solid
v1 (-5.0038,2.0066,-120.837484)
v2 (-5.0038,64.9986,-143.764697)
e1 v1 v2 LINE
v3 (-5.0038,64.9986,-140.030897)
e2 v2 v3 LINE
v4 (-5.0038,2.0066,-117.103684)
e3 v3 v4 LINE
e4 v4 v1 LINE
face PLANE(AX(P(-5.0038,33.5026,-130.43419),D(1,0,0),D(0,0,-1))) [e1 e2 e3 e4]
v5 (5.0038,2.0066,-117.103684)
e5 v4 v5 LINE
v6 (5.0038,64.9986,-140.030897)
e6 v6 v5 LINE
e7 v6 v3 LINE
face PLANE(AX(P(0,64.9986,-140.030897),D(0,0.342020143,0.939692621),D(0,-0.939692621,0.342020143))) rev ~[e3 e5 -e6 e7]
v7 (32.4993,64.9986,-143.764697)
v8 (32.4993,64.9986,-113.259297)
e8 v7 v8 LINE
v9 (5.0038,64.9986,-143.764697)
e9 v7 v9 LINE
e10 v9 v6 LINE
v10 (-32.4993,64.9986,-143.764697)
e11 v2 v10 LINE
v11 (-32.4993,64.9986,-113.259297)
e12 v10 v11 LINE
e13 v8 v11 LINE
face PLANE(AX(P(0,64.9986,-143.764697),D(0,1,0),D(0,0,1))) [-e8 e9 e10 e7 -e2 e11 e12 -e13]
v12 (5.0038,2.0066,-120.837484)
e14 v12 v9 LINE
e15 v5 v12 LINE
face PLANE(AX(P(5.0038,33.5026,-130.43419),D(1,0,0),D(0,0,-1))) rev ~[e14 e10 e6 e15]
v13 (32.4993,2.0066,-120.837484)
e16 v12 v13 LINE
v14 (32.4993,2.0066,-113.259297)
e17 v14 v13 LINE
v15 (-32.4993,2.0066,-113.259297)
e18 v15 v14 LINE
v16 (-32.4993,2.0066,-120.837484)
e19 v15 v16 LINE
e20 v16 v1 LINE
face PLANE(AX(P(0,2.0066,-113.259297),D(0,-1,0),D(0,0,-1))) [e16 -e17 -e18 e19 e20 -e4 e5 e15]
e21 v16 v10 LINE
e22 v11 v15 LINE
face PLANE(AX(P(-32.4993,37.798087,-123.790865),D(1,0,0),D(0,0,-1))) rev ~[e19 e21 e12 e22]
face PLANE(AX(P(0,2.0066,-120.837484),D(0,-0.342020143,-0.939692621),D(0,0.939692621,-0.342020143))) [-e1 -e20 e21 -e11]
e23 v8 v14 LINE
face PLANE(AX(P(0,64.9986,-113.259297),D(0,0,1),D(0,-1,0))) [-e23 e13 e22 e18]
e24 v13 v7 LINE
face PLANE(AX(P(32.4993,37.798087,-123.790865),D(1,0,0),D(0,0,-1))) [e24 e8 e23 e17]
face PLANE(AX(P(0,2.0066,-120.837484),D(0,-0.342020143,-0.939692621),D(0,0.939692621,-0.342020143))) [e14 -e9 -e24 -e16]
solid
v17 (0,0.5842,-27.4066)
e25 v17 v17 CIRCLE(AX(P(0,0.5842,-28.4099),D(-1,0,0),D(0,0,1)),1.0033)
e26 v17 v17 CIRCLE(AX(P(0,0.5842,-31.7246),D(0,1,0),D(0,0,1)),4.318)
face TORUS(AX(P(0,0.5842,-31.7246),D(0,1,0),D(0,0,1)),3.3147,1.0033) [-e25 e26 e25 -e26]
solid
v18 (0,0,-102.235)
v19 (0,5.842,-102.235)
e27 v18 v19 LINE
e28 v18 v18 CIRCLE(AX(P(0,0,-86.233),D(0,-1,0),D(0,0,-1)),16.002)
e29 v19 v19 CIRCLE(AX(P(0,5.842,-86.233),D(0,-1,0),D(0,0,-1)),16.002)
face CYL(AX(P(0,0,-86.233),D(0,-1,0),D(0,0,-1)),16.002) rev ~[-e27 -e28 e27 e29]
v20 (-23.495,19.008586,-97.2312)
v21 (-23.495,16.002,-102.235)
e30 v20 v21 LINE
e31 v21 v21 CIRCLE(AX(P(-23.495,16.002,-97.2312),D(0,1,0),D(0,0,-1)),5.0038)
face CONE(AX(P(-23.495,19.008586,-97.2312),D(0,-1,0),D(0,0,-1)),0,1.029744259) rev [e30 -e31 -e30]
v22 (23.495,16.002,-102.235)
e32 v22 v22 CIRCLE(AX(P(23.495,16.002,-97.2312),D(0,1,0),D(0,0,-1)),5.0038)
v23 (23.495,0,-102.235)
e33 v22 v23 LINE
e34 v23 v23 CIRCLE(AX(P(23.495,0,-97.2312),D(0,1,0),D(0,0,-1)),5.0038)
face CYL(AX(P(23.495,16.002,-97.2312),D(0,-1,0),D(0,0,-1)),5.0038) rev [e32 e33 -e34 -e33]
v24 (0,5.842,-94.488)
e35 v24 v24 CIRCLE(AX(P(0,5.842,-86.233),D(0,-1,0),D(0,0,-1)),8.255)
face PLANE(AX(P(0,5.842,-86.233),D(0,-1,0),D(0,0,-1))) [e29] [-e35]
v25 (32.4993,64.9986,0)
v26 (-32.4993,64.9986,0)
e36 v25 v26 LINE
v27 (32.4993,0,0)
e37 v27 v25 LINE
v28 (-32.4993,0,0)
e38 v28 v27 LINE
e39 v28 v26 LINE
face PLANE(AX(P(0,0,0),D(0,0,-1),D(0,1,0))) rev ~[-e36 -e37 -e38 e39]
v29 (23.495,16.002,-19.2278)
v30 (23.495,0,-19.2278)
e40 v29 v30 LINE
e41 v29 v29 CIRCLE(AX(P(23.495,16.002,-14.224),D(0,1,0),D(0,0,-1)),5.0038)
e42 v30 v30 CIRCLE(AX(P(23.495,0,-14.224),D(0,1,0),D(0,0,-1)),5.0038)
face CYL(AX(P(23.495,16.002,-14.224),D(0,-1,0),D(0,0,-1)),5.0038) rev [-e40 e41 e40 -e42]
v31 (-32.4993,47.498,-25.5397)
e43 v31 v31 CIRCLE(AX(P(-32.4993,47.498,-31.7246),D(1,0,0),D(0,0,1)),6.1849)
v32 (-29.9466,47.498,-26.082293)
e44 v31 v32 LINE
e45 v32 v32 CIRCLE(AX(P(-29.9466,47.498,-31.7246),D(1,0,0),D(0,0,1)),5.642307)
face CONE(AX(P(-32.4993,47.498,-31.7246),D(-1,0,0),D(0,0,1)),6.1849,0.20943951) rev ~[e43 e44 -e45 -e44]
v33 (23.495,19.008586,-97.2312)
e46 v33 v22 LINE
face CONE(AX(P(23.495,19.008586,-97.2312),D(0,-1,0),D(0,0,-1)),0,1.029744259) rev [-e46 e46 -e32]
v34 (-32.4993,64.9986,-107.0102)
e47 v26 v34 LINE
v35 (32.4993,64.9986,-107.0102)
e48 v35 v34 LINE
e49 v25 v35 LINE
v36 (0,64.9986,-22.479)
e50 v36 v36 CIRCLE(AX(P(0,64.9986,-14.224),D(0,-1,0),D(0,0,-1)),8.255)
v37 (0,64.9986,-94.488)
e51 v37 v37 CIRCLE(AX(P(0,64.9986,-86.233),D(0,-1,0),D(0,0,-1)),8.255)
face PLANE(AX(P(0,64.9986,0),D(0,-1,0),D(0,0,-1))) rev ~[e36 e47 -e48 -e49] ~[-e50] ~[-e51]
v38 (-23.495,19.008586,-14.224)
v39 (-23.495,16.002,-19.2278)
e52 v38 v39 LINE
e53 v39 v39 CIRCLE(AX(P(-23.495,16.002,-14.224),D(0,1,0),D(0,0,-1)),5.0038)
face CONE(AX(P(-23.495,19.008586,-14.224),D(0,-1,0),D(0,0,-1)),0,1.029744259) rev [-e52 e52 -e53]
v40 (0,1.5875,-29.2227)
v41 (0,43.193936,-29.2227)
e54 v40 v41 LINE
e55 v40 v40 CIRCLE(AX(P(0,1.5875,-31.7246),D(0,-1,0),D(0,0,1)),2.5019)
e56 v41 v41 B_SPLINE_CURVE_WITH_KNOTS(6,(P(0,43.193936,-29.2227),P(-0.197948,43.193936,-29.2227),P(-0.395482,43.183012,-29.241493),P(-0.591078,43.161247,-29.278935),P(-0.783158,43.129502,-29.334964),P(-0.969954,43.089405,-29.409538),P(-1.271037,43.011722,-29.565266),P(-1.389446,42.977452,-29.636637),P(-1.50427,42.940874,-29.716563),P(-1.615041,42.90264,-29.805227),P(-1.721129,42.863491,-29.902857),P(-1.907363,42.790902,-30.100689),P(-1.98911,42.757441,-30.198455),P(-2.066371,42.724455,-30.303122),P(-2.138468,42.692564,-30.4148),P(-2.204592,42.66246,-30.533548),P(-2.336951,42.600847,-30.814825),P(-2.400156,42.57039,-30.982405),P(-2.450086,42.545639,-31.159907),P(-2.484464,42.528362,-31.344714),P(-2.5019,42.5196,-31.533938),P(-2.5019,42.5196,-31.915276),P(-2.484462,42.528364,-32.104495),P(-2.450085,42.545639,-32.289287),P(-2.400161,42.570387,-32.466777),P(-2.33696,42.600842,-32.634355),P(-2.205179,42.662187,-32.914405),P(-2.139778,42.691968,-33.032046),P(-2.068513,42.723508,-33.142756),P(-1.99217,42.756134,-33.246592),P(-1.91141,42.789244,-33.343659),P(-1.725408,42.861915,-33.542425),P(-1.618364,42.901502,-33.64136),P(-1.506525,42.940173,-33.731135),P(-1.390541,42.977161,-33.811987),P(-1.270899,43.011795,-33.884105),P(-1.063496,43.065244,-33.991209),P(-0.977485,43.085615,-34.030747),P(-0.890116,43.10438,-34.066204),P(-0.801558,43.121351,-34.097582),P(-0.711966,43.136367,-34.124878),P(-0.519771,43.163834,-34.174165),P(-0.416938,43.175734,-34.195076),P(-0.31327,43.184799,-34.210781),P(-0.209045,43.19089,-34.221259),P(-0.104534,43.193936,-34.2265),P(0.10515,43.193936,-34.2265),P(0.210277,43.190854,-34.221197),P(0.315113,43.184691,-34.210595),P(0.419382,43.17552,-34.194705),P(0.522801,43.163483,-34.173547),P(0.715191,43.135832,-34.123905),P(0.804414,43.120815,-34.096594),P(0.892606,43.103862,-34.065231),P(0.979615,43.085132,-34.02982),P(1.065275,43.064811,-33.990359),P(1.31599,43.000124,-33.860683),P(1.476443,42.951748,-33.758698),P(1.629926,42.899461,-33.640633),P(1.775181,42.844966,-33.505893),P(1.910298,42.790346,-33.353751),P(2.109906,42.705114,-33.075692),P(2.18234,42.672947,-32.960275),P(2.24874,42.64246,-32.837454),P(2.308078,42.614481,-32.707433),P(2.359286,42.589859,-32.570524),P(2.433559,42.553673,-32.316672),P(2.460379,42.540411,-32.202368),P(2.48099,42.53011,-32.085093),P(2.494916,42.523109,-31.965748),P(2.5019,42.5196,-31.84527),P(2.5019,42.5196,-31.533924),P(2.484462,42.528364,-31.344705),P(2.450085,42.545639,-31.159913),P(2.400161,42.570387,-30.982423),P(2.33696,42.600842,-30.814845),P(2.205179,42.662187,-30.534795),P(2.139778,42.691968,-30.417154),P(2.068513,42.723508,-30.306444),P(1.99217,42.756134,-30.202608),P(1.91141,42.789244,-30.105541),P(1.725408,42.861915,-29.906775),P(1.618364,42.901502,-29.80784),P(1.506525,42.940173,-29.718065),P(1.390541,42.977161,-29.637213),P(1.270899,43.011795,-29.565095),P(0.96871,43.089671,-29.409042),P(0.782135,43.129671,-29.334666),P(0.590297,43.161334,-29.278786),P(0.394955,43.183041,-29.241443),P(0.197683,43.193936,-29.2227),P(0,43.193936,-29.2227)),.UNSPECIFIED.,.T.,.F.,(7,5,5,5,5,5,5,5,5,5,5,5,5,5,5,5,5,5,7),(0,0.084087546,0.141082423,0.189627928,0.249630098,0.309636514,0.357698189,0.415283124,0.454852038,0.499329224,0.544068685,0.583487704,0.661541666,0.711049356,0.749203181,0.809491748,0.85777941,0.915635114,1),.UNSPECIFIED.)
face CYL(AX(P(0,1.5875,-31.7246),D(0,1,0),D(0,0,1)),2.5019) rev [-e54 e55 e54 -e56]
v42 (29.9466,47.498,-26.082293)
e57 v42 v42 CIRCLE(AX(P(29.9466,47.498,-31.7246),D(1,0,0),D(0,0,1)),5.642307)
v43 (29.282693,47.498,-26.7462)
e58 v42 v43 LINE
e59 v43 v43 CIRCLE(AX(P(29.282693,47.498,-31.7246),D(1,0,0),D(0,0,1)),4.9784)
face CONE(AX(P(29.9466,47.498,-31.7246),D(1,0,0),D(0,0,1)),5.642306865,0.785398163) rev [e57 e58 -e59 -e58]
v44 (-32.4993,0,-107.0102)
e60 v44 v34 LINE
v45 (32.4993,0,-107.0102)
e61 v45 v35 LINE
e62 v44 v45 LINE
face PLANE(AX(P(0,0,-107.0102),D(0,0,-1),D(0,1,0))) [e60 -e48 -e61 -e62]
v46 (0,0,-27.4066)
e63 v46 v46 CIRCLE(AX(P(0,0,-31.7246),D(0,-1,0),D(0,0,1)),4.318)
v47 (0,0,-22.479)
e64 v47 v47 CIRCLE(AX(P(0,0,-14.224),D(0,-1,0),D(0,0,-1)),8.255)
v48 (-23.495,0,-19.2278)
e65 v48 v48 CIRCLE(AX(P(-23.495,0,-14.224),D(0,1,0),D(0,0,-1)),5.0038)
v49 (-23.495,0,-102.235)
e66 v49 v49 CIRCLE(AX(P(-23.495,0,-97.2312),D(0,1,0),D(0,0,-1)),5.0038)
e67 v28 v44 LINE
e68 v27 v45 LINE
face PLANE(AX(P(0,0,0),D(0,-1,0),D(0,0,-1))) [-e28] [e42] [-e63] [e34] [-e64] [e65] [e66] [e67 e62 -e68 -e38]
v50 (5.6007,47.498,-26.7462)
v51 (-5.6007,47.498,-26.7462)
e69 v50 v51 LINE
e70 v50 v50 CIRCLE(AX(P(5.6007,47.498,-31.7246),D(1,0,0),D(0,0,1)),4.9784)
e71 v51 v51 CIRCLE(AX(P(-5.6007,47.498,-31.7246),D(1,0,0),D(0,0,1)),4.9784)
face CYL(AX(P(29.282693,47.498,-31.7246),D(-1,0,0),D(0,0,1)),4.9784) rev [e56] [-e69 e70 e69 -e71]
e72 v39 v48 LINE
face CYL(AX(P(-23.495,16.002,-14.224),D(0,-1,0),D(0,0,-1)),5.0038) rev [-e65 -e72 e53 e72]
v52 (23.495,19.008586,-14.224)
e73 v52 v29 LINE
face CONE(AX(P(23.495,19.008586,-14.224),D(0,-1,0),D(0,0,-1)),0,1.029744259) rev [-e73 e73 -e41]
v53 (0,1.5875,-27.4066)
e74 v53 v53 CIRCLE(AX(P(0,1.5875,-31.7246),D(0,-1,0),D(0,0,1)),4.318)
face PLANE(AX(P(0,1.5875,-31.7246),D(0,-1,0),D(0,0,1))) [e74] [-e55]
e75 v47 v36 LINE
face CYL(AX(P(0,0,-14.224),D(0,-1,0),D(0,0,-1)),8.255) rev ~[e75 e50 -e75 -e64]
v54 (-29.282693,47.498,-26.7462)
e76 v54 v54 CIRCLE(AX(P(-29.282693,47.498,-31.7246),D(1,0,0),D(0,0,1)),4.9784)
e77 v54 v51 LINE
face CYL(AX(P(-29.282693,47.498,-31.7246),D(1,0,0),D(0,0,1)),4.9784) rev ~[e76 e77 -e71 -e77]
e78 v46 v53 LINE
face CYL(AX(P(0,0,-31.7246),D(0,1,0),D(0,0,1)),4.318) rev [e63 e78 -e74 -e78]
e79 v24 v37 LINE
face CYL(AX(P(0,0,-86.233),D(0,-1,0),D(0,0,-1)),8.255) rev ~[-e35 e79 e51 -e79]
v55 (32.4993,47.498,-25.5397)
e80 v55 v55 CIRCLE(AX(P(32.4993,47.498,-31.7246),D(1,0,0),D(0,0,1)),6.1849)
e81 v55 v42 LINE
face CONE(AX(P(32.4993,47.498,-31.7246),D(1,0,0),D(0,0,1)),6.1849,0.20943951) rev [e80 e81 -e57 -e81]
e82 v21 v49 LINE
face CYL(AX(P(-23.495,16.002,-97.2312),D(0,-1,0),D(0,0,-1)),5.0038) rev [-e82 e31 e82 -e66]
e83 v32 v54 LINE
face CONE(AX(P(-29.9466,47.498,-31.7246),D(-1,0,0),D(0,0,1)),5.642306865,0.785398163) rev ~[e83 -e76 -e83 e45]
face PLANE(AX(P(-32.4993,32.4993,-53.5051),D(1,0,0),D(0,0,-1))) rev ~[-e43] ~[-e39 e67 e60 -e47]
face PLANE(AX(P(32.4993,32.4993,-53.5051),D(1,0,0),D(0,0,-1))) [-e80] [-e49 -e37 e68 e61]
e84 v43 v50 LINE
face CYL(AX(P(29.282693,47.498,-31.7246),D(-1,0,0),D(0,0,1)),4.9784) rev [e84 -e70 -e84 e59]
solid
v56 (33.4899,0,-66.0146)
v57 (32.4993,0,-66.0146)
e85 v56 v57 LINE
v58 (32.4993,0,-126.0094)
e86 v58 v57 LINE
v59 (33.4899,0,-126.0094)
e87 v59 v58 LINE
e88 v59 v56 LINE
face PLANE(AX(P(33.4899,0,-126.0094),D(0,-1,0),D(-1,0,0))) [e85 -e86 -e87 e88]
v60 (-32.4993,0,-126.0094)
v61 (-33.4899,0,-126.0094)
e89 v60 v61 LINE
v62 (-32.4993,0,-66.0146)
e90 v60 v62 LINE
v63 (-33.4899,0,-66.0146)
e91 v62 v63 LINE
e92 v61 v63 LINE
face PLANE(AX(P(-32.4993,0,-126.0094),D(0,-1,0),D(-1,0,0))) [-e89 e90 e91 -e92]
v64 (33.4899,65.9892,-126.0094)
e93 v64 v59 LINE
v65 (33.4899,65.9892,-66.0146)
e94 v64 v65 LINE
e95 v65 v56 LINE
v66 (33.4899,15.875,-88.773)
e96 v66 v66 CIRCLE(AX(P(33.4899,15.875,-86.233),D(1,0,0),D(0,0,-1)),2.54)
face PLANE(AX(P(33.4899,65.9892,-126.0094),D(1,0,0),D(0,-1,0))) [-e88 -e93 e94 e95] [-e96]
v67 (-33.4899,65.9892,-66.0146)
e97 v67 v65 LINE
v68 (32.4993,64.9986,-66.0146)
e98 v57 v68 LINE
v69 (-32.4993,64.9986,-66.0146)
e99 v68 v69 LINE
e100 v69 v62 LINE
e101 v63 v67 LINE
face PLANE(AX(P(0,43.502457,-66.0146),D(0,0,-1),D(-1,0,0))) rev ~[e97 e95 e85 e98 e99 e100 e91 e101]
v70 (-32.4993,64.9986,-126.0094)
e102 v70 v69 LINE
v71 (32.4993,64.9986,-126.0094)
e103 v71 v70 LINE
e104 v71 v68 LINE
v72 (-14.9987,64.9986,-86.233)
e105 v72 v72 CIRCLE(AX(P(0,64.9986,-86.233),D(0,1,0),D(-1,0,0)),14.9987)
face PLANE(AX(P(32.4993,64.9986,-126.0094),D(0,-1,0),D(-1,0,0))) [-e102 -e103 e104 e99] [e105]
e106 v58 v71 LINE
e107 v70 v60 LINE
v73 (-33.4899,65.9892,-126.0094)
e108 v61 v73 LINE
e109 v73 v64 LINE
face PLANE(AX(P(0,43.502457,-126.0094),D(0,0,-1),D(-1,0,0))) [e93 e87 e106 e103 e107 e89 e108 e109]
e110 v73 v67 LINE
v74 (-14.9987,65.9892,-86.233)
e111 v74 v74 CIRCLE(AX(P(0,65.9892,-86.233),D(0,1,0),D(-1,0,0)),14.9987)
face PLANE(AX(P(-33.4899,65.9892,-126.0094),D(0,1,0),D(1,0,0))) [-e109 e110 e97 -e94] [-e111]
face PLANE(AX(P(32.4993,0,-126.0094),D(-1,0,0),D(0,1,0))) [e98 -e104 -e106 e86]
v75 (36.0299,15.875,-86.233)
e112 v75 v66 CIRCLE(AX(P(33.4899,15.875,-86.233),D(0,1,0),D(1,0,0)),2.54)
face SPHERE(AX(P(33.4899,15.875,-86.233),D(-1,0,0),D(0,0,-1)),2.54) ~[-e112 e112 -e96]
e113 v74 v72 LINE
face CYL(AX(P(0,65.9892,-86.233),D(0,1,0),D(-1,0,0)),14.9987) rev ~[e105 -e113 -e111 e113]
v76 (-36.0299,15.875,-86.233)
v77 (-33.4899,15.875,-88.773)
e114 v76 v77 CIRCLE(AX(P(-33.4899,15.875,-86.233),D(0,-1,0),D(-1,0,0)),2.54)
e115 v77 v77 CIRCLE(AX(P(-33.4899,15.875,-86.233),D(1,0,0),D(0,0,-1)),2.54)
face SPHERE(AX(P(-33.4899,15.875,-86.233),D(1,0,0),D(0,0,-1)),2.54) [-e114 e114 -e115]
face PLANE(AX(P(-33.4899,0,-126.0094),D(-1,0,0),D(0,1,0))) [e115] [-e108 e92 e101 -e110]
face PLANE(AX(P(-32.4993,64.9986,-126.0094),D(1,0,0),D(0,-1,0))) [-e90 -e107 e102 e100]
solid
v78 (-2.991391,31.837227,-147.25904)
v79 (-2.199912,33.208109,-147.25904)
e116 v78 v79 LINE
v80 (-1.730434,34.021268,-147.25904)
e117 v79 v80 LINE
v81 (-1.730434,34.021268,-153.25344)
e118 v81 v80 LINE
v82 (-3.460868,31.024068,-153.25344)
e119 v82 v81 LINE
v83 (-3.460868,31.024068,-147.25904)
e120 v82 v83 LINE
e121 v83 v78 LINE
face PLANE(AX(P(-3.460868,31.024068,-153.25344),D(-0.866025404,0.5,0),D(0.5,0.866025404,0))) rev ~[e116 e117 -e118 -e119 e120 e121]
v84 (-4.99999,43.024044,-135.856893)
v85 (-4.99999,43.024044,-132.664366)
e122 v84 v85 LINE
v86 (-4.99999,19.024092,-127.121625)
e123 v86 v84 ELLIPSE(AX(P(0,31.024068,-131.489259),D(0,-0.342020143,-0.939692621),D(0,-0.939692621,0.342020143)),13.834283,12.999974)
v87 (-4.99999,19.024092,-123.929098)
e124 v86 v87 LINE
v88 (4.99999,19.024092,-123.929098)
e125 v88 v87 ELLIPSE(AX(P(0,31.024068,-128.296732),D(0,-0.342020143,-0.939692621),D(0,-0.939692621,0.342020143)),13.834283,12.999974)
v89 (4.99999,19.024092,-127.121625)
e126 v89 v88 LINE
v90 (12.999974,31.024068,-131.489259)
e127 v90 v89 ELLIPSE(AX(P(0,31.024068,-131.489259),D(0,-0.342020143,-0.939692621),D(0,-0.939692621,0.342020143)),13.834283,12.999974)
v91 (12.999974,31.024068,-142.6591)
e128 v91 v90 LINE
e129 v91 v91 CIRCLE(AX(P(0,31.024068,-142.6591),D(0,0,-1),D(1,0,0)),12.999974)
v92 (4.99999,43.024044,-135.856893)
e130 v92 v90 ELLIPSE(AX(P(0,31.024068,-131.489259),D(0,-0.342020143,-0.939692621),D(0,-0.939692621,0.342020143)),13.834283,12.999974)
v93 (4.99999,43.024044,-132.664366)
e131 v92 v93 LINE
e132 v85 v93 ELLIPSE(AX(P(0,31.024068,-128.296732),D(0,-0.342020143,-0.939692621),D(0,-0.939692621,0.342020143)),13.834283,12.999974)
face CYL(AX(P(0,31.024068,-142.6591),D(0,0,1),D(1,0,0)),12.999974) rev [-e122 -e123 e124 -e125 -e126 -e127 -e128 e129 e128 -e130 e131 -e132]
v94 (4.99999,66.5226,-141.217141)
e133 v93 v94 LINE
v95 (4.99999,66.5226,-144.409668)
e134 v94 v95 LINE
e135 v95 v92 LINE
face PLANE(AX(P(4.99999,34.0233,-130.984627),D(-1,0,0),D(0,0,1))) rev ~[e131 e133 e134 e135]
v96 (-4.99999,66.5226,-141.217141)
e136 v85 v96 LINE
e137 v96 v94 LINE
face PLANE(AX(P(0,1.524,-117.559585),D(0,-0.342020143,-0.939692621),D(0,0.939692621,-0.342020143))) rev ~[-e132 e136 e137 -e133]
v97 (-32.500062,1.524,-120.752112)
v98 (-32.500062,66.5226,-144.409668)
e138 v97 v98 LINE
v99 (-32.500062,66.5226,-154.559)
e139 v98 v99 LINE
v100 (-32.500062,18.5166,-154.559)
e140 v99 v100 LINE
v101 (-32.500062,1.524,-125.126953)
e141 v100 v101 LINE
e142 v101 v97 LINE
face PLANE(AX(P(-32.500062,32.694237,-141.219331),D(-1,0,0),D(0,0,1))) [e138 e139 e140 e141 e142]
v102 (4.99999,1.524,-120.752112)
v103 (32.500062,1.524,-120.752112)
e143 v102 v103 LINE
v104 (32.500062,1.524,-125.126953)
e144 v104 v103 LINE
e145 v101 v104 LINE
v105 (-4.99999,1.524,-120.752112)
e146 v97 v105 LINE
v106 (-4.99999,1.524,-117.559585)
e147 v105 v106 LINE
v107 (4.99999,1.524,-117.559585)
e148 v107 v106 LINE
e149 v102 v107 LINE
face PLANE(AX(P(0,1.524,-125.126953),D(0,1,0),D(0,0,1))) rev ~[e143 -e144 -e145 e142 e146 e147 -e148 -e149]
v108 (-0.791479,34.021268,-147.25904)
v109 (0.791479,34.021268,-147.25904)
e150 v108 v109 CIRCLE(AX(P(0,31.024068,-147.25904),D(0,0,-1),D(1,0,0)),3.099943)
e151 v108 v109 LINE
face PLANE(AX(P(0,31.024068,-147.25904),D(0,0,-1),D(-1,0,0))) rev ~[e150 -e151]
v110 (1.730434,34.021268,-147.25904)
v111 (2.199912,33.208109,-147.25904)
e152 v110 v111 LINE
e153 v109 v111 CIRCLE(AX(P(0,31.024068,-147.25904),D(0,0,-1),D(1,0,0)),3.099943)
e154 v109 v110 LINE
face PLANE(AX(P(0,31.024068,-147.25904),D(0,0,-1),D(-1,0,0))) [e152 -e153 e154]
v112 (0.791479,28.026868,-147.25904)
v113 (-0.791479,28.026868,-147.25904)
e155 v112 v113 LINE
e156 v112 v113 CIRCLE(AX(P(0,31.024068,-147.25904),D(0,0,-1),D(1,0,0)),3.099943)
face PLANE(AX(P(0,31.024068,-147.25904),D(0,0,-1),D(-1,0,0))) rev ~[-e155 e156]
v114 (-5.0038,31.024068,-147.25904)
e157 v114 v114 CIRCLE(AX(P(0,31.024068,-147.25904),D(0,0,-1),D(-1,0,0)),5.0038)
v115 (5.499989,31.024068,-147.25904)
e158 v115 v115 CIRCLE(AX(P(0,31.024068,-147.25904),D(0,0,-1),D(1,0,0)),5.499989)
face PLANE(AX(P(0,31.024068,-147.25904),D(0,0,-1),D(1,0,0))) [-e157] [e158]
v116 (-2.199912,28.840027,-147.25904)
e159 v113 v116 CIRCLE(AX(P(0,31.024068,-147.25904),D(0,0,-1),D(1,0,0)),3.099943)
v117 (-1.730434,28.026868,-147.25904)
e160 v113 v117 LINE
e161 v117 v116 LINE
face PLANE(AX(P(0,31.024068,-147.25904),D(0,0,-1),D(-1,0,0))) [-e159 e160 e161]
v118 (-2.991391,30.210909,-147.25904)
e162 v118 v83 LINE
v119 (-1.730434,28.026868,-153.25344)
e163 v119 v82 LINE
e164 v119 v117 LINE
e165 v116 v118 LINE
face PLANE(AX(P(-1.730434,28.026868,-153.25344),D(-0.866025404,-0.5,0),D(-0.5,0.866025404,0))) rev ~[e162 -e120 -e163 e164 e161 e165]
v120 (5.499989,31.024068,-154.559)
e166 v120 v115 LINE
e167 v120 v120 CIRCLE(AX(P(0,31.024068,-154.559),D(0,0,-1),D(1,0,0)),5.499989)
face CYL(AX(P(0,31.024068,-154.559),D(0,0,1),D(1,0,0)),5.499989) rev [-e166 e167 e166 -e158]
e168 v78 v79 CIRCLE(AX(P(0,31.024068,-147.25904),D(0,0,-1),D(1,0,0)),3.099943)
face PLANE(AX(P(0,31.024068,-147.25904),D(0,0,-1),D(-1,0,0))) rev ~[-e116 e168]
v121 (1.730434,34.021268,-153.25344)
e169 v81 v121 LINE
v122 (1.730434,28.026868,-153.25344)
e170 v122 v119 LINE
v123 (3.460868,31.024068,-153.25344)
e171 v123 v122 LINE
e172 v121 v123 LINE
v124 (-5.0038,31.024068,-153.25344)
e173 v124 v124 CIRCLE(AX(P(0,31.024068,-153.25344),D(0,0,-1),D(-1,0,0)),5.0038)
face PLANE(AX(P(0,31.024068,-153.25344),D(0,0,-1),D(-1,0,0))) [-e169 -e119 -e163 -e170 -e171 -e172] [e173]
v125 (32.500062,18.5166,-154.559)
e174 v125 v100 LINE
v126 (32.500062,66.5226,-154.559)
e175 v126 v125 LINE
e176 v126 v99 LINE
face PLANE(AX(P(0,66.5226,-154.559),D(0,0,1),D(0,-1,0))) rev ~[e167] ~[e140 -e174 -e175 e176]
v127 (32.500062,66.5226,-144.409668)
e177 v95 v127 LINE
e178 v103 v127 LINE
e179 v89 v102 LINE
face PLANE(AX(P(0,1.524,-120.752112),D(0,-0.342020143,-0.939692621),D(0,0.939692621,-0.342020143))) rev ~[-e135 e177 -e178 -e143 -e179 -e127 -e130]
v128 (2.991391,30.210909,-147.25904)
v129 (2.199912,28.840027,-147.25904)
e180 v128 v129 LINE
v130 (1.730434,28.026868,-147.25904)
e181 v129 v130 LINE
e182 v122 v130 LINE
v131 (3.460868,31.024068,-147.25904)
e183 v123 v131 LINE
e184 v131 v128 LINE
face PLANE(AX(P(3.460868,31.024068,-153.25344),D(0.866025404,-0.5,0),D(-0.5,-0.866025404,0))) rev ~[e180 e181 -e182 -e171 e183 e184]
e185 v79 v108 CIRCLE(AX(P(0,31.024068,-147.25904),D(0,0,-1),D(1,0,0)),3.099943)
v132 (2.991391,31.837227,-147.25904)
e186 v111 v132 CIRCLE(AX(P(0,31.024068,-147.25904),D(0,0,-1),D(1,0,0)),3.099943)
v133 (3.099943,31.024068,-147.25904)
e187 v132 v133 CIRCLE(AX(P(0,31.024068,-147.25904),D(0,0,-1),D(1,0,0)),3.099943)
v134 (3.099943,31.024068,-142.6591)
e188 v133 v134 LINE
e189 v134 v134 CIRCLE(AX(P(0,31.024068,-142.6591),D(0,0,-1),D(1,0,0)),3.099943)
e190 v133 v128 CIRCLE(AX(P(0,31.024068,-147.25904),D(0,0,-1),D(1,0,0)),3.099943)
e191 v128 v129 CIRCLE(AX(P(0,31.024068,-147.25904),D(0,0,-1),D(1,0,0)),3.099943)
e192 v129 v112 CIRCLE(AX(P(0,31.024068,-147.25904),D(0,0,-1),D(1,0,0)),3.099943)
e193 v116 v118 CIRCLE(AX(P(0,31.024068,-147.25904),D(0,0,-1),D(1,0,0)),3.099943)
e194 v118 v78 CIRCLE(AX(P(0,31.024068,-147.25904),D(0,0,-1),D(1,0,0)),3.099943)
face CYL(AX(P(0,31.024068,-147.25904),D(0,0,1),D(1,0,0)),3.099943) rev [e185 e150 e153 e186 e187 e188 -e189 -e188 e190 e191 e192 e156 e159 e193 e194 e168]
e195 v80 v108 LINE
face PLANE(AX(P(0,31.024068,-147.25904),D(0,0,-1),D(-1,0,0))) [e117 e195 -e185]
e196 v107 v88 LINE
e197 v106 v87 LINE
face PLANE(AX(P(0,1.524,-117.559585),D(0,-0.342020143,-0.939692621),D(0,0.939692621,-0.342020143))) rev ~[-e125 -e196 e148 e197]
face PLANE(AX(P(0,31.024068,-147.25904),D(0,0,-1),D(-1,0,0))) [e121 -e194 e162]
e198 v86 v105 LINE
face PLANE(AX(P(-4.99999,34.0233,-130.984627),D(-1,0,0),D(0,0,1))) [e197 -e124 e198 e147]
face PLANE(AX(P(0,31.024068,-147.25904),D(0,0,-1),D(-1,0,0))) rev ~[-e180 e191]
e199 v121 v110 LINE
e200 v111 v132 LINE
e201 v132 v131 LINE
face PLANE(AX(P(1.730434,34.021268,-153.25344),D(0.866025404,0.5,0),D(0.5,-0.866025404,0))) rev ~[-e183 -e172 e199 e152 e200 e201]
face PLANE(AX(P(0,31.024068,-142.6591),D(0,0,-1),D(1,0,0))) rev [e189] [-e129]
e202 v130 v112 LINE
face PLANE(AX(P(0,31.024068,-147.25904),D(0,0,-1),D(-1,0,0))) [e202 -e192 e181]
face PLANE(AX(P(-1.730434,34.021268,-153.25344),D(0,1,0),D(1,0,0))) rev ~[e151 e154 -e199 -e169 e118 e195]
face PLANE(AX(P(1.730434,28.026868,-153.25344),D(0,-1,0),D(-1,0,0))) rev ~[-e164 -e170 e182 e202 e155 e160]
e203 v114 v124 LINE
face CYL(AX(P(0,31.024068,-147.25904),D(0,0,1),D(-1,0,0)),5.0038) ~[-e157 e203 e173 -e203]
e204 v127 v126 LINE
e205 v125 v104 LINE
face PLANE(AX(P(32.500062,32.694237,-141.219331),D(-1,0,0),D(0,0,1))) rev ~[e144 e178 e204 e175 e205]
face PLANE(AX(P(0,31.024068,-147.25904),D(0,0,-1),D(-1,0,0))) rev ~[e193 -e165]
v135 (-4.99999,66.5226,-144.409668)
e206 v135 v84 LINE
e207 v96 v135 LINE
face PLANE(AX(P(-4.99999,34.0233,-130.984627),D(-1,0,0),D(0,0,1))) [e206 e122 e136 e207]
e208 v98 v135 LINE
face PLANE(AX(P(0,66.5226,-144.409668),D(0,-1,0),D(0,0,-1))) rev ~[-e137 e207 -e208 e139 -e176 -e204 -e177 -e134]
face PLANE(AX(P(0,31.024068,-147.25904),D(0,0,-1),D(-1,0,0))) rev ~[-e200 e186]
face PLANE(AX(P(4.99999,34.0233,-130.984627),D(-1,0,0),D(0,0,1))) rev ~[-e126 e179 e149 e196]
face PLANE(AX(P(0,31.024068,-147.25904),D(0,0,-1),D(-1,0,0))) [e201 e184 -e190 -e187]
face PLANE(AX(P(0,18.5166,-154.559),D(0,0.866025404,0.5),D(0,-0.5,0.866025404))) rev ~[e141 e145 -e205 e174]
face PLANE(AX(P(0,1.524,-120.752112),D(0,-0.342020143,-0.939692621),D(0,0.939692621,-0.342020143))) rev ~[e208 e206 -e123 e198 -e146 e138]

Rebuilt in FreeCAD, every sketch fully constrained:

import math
import FreeCAD as App
import Part
import Sketcher
Q = App.Units.Quantity


def add_polygon(sketch, points):
    """Adds a closed chain of lines whose ends are joined by coincident constraints."""
    first, n = sketch.GeometryCount, len(points)
    for a, b in zip(points, points[1:] + points[:1]):
        sketch.addGeometry(Part.LineSegment(App.Vector(*a, 0), App.Vector(*b, 0)), False)
    for i in range(n):
        sketch.addConstraint(Sketcher.Constraint("Coincident", first + i, 2, first + (i + 1) % n, 1))

doc = App.newDocument("Part")
body = doc.addObject("PartDesign::Body", "Body")

# Sketch on YZ plane
sketch1 = body.newObject("Sketcher::SketchObject", "Sketch")
sketch1.AttachmentSupport = (doc.getObject("YZ_Plane"), [""])
sketch1.MapMode = "FlatFace"
add_polygon(sketch1, [(64.9986, 0), (0, 0), (0, -107.0102), (64.9986, -107.0102)])  # lines 0-3
sketch1.addConstraint([
    Sketcher.Constraint("Horizontal", 0),
    Sketcher.Constraint("Vertical", 1),
    Sketcher.Constraint("Horizontal", 2),
    Sketcher.Constraint("Vertical", 3),
    Sketcher.Constraint("Coincident", 0, 2, -1, 1),
    Sketcher.Constraint("DistanceX", 0, 2, 0, 1, Q("2.559 in")),
    Sketcher.Constraint("DistanceY", 1, 2, 1, 1, Q("4.213 in")),
])
pad1 = body.newObject("PartDesign::Pad", "Pad")
pad1.Profile = sketch1
pad1.Length = Q("2.559 in")
pad1.Midplane = True

# Sketch on XZ plane
sketch2 = body.newObject("Sketcher::SketchObject", "Sketch001")
sketch2.AttachmentSupport = (doc.getObject("XZ_Plane"), [""])
sketch2.MapMode = "FlatFace"
sketch2.addGeometry([
    Part.Circle(App.Vector(0, -14.224, 0), App.Vector(0, 0, 1), 8.255),
    Part.Circle(App.Vector(0, -86.233, 0), App.Vector(0, 0, 1), 8.255),
], False)
sketch2.addConstraint([
    Sketcher.Constraint("Equal", 0, 1),
    Sketcher.Constraint("PointOnObject", 0, 3, -2),
    Sketcher.Constraint("PointOnObject", 1, 3, -2),
    Sketcher.Constraint("Diameter", 0, Q("0.65 in")),
    Sketcher.Constraint("DistanceY", 0, 3, -1, 1, Q("0.56 in")),
    Sketcher.Constraint("DistanceY", 1, 3, -1, 1, Q("3.395 in")),
])
pocket1 = body.newObject("PartDesign::Pocket", "Pocket")
pocket1.Profile = sketch2
pocket1.Length = Q("2.559 in")

# Sketch on YZ plane
sketch3 = body.newObject("Sketcher::SketchObject", "Sketch002")
sketch3.AttachmentSupport = (doc.getObject("YZ_Plane"), [""])
sketch3.MapMode = "FlatFace"
sketch3.AttachmentOffset = App.Placement(App.Vector(0, 0, -0.925 * 25.4), App.Rotation())
add_polygon(sketch3, [(19.008586, -14.224), (0, -14.224), (0, -19.2278), (16.002, -19.2278)])  # lines 0-3
sketch3.addGeometry(Part.LineSegment(App.Vector(0, -14.224, 0), App.Vector(19.008586, -14.224, 0)), True)  # axis
sketch3.addConstraint([
    Sketcher.Constraint("Horizontal", 0),
    Sketcher.Constraint("Vertical", 1),
    Sketcher.Constraint("Horizontal", 2),
    Sketcher.Constraint("Horizontal", 4),
    Sketcher.Constraint("Coincident", 4, 1, 0, 2),
    Sketcher.Constraint("PointOnObject", 0, 2, -2),
    Sketcher.Constraint("Equal", 0, 4),
    Sketcher.Constraint("Angle", 3, Q("59 deg")),
    Sketcher.Constraint("DistanceX", 2, 1, 2, 2, Q("0.63 in")),
    Sketcher.Constraint("DistanceY", 1, 2, 1, 1, Q("0.197 in")),
    Sketcher.Constraint("DistanceY", 0, 2, -1, 1, Q("0.56 in")),
])
groove = body.newObject("PartDesign::Groove", "Groove")
groove.Profile = sketch3
groove.ReferenceAxis = (sketch3, ["Axis0"])
groove.Angle = 360
doc.recompute()

linearpattern = body.newObject("PartDesign::LinearPattern", "LinearPattern")
linearpattern.Originals = [groove]
linearpattern.Direction = (doc.getObject("Z_Axis"), [""])
linearpattern.Mode = "offset"
linearpattern.Offset = Q("3.268 in")
linearpattern.Occurrences = 2
linearpattern.Reversed = True
body.Tip = linearpattern
doc.recompute()

linearpattern2 = body.newObject("PartDesign::LinearPattern", "LinearPattern001")
linearpattern2.Originals = [groove]
linearpattern2.Direction = (doc.getObject("X_Axis"), [""])
linearpattern2.Mode = "offset"
linearpattern2.Offset = Q("1.85 in")
linearpattern2.Occurrences = 2
body.Tip = linearpattern2
doc.recompute()

datumline = body.newObject("PartDesign::Line", "DatumLine")
datumline.Placement = App.Placement(App.Vector(0, 0, 0), App.Rotation(App.Vector(0, 0, 1), App.Vector(0.492636271, 0, -0.870235316)))
linearpattern3 = body.newObject("PartDesign::LinearPattern", "LinearPattern002")
linearpattern3.Originals = [groove]
linearpattern3.Direction = (datumline, [""])
linearpattern3.Mode = "offset"
linearpattern3.Offset = 95.384775
linearpattern3.Occurrences = 2
body.Tip = linearpattern3

# Sketch on XZ plane
sketch4 = body.newObject("Sketcher::SketchObject", "Sketch003")
sketch4.AttachmentSupport = (doc.getObject("XZ_Plane"), [""])
sketch4.MapMode = "FlatFace"
sketch4.AttachmentOffset = App.Placement(App.Vector(0, 0, -1.87 * 25.4), App.Rotation())
add_polygon(sketch4, [(32.4993, -37.9095), (32.4993, -31.7246), (-5.6007, -31.7246), (-5.6007, -36.703), (29.282693, -36.703), (29.9466, -37.366907)])  # lines 0-5
sketch4.addGeometry(Part.LineSegment(App.Vector(-5.6007, -31.7246, 0), App.Vector(32.4993, -31.7246, 0)), True)  # axis
sketch4.addConstraint([
    Sketcher.Constraint("Vertical", 0),
    Sketcher.Constraint("Horizontal", 1),
    Sketcher.Constraint("Vertical", 2),
    Sketcher.Constraint("Horizontal", 3),
    Sketcher.Constraint("Horizontal", 6),
    Sketcher.Constraint("Coincident", 6, 1, 1, 2),
    Sketcher.Constraint("Vertical", 5, 2, 6, 2),
    Sketcher.Constraint("DistanceX", 1, 2, 1, 1, Q("1.5 in")),
    Sketcher.Constraint("Angle", 4, Q("-45 deg")),
    Sketcher.Constraint("Angle", 5, Q("-12 deg")),
    Sketcher.Constraint("DistanceY", 2, 2, 2, 1, Q("0.196 in")),
    Sketcher.Constraint("DistanceY", 0, 1, 0, 2, Q("0.2435 in")),
    Sketcher.Constraint("DistanceY", 0, 2, -1, 1, Q("1.249 in")),
    Sketcher.Constraint("DistanceX", -1, 1, 4, 2, Q("1.179 in")),
    Sketcher.Constraint("DistanceX", -1, 1, 0, 2, Q("1.2795 in")),
])
groove2 = body.newObject("PartDesign::Groove", "Groove001")
groove2.Profile = sketch4
groove2.ReferenceAxis = (sketch4, ["Axis0"])
groove2.Angle = 360
doc.recompute()

mirrored = body.newObject("PartDesign::Mirrored", "Mirrored")
mirrored.Originals = [groove2]
mirrored.MirrorPlane = (doc.getObject("YZ_Plane"), [""])
body.Tip = mirrored

# Sketch on YZ plane
sketch5 = body.newObject("Sketcher::SketchObject", "Sketch004")
sketch5.AttachmentSupport = (doc.getObject("YZ_Plane"), [""])
sketch5.MapMode = "FlatFace"
add_polygon(sketch5, [(0, -36.0426), (1.5875, -36.0426), (1.5875, -34.2265), (47.498, -34.2265), (47.498, -31.7246), (0, -31.7246)])  # lines 0-5
sketch5.addGeometry(Part.LineSegment(App.Vector(47.498, -31.7246, 0), App.Vector(0, -31.7246, 0)), True)  # axis
sketch5.addConstraint([
    Sketcher.Constraint("Horizontal", 0),
    Sketcher.Constraint("Vertical", 1),
    Sketcher.Constraint("Horizontal", 2),
    Sketcher.Constraint("Vertical", 3),
    Sketcher.Constraint("Horizontal", 4),
    Sketcher.Constraint("Vertical", 5),
    Sketcher.Constraint("Horizontal", 6),
    Sketcher.Constraint("Coincident", 6, 1, 3, 2),
    Sketcher.Constraint("PointOnObject", 4, 2, -2),
    Sketcher.Constraint("PointOnObject", 6, 2, -2),
    Sketcher.Constraint("DistanceX", 4, 2, 4, 1, Q("1.87 in")),
    Sketcher.Constraint("DistanceY", 5, 2, 5, 1, Q("0.17 in")),
    Sketcher.Constraint("DistanceX", 0, 1, 0, 2, Q("0.0625 in")),
    Sketcher.Constraint("DistanceY", 1, 1, 1, 2, Q("0.0715 in")),
    Sketcher.Constraint("DistanceY", 0, 2, -1, 1, Q("1.419 in")),
])
groove3 = body.newObject("PartDesign::Groove", "Groove002")
groove3.Profile = sketch5
groove3.ReferenceAxis = (sketch5, ["Axis0"])
groove3.Angle = 360

# Sketch on XZ plane
sketch6 = body.newObject("Sketcher::SketchObject", "Sketch005")
sketch6.AttachmentSupport = (doc.getObject("XZ_Plane"), [""])
sketch6.MapMode = "FlatFace"
sketch6.addGeometry(Part.Circle(App.Vector(0, -86.233, 0), App.Vector(0, 0, 1), 16.002), False)
sketch6.addConstraint([
    Sketcher.Constraint("PointOnObject", 0, 3, -2),
    Sketcher.Constraint("Diameter", 0, Q("1.26 in")),
    Sketcher.Constraint("DistanceY", 0, 3, -1, 1, Q("3.395 in")),
])
pocket2 = body.newObject("PartDesign::Pocket", "Pocket001")
pocket2.Profile = sketch6
pocket2.Length = Q("0.23 in")
body2 = doc.addObject("PartDesign::Body", "Body001")

# Sketch on YZ plane
sketch7 = body2.newObject("Sketcher::SketchObject", "Sketch006")
sketch7.AttachmentSupport = (doc.getObject("YZ_Plane001"), [""])
sketch7.MapMode = "FlatFace"
add_polygon(sketch7, [(66.5226, -154.559), (66.5226, -144.409668), (1.524, -120.752112), (1.524, -125.126953), (18.5166, -154.559)])  # lines 0-4
sketch7.addConstraint([
    Sketcher.Constraint("Vertical", 0),
    Sketcher.Constraint("Vertical", 2),
    Sketcher.Constraint("Horizontal", 4),
    Sketcher.Constraint("Angle", 1, Q("160 deg")),
    Sketcher.Constraint("Angle", 3, Q("-60 deg")),
    Sketcher.Constraint("DistanceX", 4, 1, 4, 2, Q("1.89 in")),
    Sketcher.Constraint("DistanceX", -1, 1, 1, 2, Q("0.06 in")),
    Sketcher.Constraint("Distance", 3, Q("1.338 in")),
    Sketcher.Constraint("DistanceY", 3, 2, -1, 1, Q("6.085 in")),
    Sketcher.Constraint("DistanceY", 0, 1, 0, 2, Q("10.149332 mm")),
])
pad2 = body2.newObject("PartDesign::Pad", "Pad001")
pad2.Profile = sketch7
pad2.Length = 65.000124
pad2.Midplane = True

# Sketch on YZ plane
sketch8 = body2.newObject("Sketcher::SketchObject", "Sketch007")
sketch8.AttachmentSupport = (doc.getObject("YZ_Plane001"), [""])
sketch8.MapMode = "FlatFace"
add_polygon(sketch8, [(1.524, -120.752112), (66.5226, -144.409668), (66.5226, -141.217141), (1.524, -117.559585)])  # lines 0-3
sketch8.addConstraint([
    Sketcher.Constraint("Vertical", 1),
    Sketcher.Constraint("Vertical", 3),
    Sketcher.Constraint("Parallel", 0, 2),
    Sketcher.Constraint("Angle", 0, Q("-20 deg")),
    Sketcher.Constraint("DistanceX", -1, 1, 2, 2, Q("0.06 in")),
    Sketcher.Constraint("DistanceX", -1, 1, 0, 2, Q("2.619 in")),
    Sketcher.Constraint("DistanceY", 1, 1, 1, 2, Q("3.192527 mm")),
    Sketcher.Constraint("DistanceY", 0, 2, -1, 1, Q("144.409668 mm")),
])
pad3 = body2.newObject("PartDesign::Pad", "Pad002")
pad3.Profile = sketch8
pad3.Length = Q("0.3937 in")
pad3.Midplane = True

# Sketch on YZ plane
sketch9 = body2.newObject("Sketcher::SketchObject", "Sketch008")
sketch9.AttachmentSupport = (doc.getObject("YZ_Plane001"), [""])
sketch9.MapMode = "FlatFace"
add_polygon(sketch9, [(36.524057, -154.559), (36.524057, -147.25904), (34.124011, -147.25904), (34.124011, -142.6591), (44.024042, -142.6591), (44.024042, -110.9091), (31.024068, -110.9091), (31.024068, -154.559)])  # lines 0-7
sketch9.addGeometry(Part.LineSegment(App.Vector(31.024068, -110.9091, 0), App.Vector(31.024068, -154.559, 0)), True)  # axis
sketch9.addConstraint([
    Sketcher.Constraint("Vertical", 0),
    Sketcher.Constraint("Horizontal", 1),
    Sketcher.Constraint("Vertical", 2),
    Sketcher.Constraint("Horizontal", 3),
    Sketcher.Constraint("Vertical", 4),
    Sketcher.Constraint("Horizontal", 5),
    Sketcher.Constraint("Vertical", 6),
    Sketcher.Constraint("Horizontal", 7),
    Sketcher.Constraint("Vertical", 8),
    Sketcher.Constraint("Coincident", 8, 1, 5, 2),
    Sketcher.Constraint("Horizontal", 7, 2, 8, 2),
    Sketcher.Constraint("DistanceY", 4, 1, 4, 2, Q("1.25 in")),
    Sketcher.Constraint("DistanceY", 0, 1, 0, 2, Q("0.2874 in")),
    Sketcher.Constraint("DistanceY", 2, 1, 2, 2, Q("0.1811 in")),
    Sketcher.Constraint("DistanceY", 6, 2, -1, 1, Q("6.085 in")),
    Sketcher.Constraint("DistanceX", 3, 1, 3, 2, Q("9.900031 mm")),
    Sketcher.Constraint("DistanceX", 7, 1, 7, 2, Q("5.499989 mm")),
    Sketcher.Constraint("DistanceX", 1, 2, 1, 1, Q("2.400046 mm")),
    Sketcher.Constraint("DistanceX", -1, 1, 1, 2, Q("34.124011 mm")),
])
groove4 = body2.newObject("PartDesign::Groove", "Groove003")
groove4.Profile = sketch9
groove4.ReferenceAxis = (sketch9, ["Axis0"])
groove4.Angle = 360

# Sketch on XY plane
sketch10 = body2.newObject("Sketcher::SketchObject", "Sketch009")
sketch10.AttachmentSupport = (doc.getObject("XY_Plane001"), [""])
sketch10.MapMode = "FlatFace"
sketch10.AttachmentOffset = App.Placement(App.Vector(0, 0, -5.7976 * 25.4), App.Rotation())
sketch10.addGeometry(Part.Circle(App.Vector(0, 31.024068, 0), App.Vector(0, 0, 1), 5.0038), False)
sketch10.addConstraint([
    Sketcher.Constraint("PointOnObject", 0, 3, -2),
    Sketcher.Constraint("Diameter", 0, Q("0.394 in")),
    Sketcher.Constraint("DistanceY", -1, 1, 0, 3, Q("31.024068 mm")),
])
pad4 = body2.newObject("PartDesign::Pad", "Pad003")
pad4.Profile = sketch10
pad4.Length = Q("0.236 in")
pad4.Reversed = True

# Sketch on XY plane
sketch11 = body2.newObject("Sketcher::SketchObject", "Sketch010")
sketch11.AttachmentSupport = (doc.getObject("XY_Plane001"), [""])
sketch11.MapMode = "FlatFace"
sketch11.AttachmentOffset = App.Placement(App.Vector(0, 0, -6.0336 * 25.4), App.Rotation())
add_polygon(sketch11, [(-3.460868, 31.024068), (-1.730434, 34.021268), (1.730434, 34.021268), (3.460868, 31.024068), (1.730434, 28.026868), (-1.730434, 28.026868)])  # lines 0-5
sketch11.addConstraint([
    Sketcher.Constraint("Horizontal", 1),
    Sketcher.Constraint("Horizontal", 4),
    Sketcher.Constraint("Symmetric", 2, 2, 5, 2, -2),
    Sketcher.Constraint("Parallel", 0, 3),
    Sketcher.Constraint("Parallel", 2, 5),
    Sketcher.Constraint("Vertical", 1, 2, 3, 2),
    Sketcher.Constraint("Vertical", 0, 2, 4, 2),
    Sketcher.Constraint("Angle", 0, Q("60 deg")),
    Sketcher.Constraint("DistanceY", 2, 2, 1, 2, Q("0.118 in")),
    Sketcher.Constraint("DistanceX", 1, 1, 1, 2, Q("3.460868 mm")),
    Sketcher.Constraint("DistanceY", -1, 1, 2, 2, Q("31.024068 mm")),
])
pocket3 = body2.newObject("PartDesign::Pocket", "Pocket002")
pocket3.Profile = sketch11
pocket3.Length = Q("0.236 in")
pocket3.Reversed = True
body3 = doc.addObject("PartDesign::Body", "Body002")

# Sketch on YZ plane
sketch12 = body3.newObject("Sketcher::SketchObject", "Sketch011")
sketch12.AttachmentSupport = (doc.getObject("YZ_Plane002"), [""])
sketch12.MapMode = "FlatFace"
add_polygon(sketch12, [(64.9986, -113.259297), (2.0066, -113.259297), (2.0066, -120.837484), (64.9986, -143.764697)])  # lines 0-3
sketch12.addConstraint([
    Sketcher.Constraint("Horizontal", 0),
    Sketcher.Constraint("Vertical", 1),
    Sketcher.Constraint("Vertical", 3),
    Sketcher.Constraint("Angle", 2, Q("-20 deg")),
    Sketcher.Constraint("DistanceX", 0, 2, 0, 1, Q("2.48 in")),
    Sketcher.Constraint("DistanceY", 3, 1, 3, 2, Q("1.201 in")),
    Sketcher.Constraint("DistanceX", -1, 1, 0, 2, Q("0.079 in")),
    Sketcher.Constraint("DistanceY", 0, 2, -1, 1, Q("113.259297 mm")),
])
pad5 = body3.newObject("PartDesign::Pad", "Pad004")
pad5.Profile = sketch12
pad5.Length = Q("2.559 in")
pad5.Midplane = True

# Sketch on YZ plane
sketch13 = body3.newObject("Sketcher::SketchObject", "Sketch012")
sketch13.AttachmentSupport = (doc.getObject("YZ_Plane002"), [""])
sketch13.MapMode = "FlatFace"
add_polygon(sketch13, [(64.9986, -140.030897), (2.0066, -117.103684), (2.0066, -120.837484), (64.9986, -143.764697)])  # lines 0-3
sketch13.addConstraint([
    Sketcher.Constraint("Vertical", 1),
    Sketcher.Constraint("Vertical", 3),
    Sketcher.Constraint("Parallel", 0, 2),
    Sketcher.Constraint("Angle", 0, Q("160 deg")),
    Sketcher.Constraint("DistanceY", 1, 2, 1, 1, Q("0.147 in")),
    Sketcher.Constraint("DistanceX", 1, 2, 2, 2, Q("2.48 in")),
    Sketcher.Constraint("DistanceX", -1, 1, 0, 2, Q("0.079 in")),
    Sketcher.Constraint("DistanceY", 0, 2, -1, 1, Q("117.103684 mm")),
])
pocket4 = body3.newObject("PartDesign::Pocket", "Pocket003")
pocket4.Profile = sketch13
pocket4.Length = Q("0.394 in")
pocket4.Midplane = True
body4 = doc.addObject("PartDesign::Body", "Body003")

# Sketch on YZ plane
sketch14 = body4.newObject("Sketcher::SketchObject", "Sketch013")
sketch14.AttachmentSupport = (doc.getObject("YZ_Plane003"), [""])
sketch14.MapMode = "FlatFace"
sketch14.addGeometry(Part.Circle(App.Vector(0.5842, -35.0393, 0), App.Vector(0, 0, 1), 1.0033), False)
sketch14.addGeometry(Part.LineSegment(App.Vector(0.5842, -31.7246, 0), App.Vector(10.5842, -31.7246, 0)), True)  # axis
sketch14.addConstraint([
    Sketcher.Constraint("Horizontal", 1),
    Sketcher.Constraint("Vertical", 0, 3, 1, 1),
    Sketcher.Constraint("Diameter", 0, Q("0.079 in")),
    Sketcher.Constraint("DistanceX", -1, 1, 0, 3, Q("0.023 in")),
    Sketcher.Constraint("DistanceY", 1, 1, -1, 1, Q("1.249 in")),
    Sketcher.Constraint("DistanceX", 1, 1, 1, 2, Q("10 mm")),
    Sketcher.Constraint("DistanceY", 0, 3, -1, 1, Q("1.3795 in")),
])
revolution = body4.newObject("PartDesign::Revolution", "Revolution")
revolution.Profile = sketch14
revolution.ReferenceAxis = (sketch14, ["Axis0"])
revolution.Angle = 360
body5 = doc.addObject("PartDesign::Body", "Body004")

# Sketch on XY plane
sketch15 = body5.newObject("Sketcher::SketchObject", "Sketch014")
sketch15.AttachmentSupport = (doc.getObject("XY_Plane004"), [""])
sketch15.MapMode = "FlatFace"
sketch15.AttachmentOffset = App.Placement(App.Vector(0, 0, -4.961 * 25.4), App.Rotation())
add_polygon(sketch15, [(-32.4993, 64.9986), (-32.4993, 0), (-33.4899, 0), (-33.4899, 65.9892), (33.4899, 65.9892), (33.4899, 0), (32.4993, 0), (32.4993, 64.9986)])  # lines 0-7
sketch15.addConstraint([
    Sketcher.Constraint("Vertical", 0),
    Sketcher.Constraint("Horizontal", 1),
    Sketcher.Constraint("Vertical", 2),
    Sketcher.Constraint("Horizontal", 3),
    Sketcher.Constraint("Vertical", 4),
    Sketcher.Constraint("Horizontal", 5),
    Sketcher.Constraint("Vertical", 6),
    Sketcher.Constraint("Horizontal", 7),
    Sketcher.Constraint("Symmetric", 1, 2, 4, 2, -1, 1),
    Sketcher.Constraint("Symmetric", 0, 2, 5, 2, -2),
    Sketcher.Constraint("Equal", 7, 0),
    Sketcher.Constraint("DistanceX", 1, 2, 1, 1, Q("0.039 in")),
    Sketcher.Constraint("DistanceX", 3, 1, 3, 2, Q("2.637 in")),
    Sketcher.Constraint("DistanceY", 2, 1, 2, 2, Q("2.598 in")),
])
pad6 = body5.newObject("PartDesign::Pad", "Pad005")
pad6.Profile = sketch15
pad6.Length = Q("2.362 in")

# Sketch on XZ plane
sketch16 = body5.newObject("Sketcher::SketchObject", "Sketch015")
sketch16.AttachmentSupport = (doc.getObject("XZ_Plane004"), [""])
sketch16.MapMode = "FlatFace"
sketch16.AttachmentOffset = App.Placement(App.Vector(0, 0, -0.625 * 25.4), App.Rotation())
sketch16.addGeometry([
    Part.LineSegment(App.Vector(33.4899, -88.773, 0), App.Vector(33.4899, -86.233, 0)),  # 0
    Part.LineSegment(App.Vector(33.4899, -86.233, 0), App.Vector(36.0299, -86.233, 0)),  # 1
    Part.ArcOfCircle(Part.Circle(App.Vector(33.4899, -86.233, 0), App.Vector(0, 0, 1), 2.54), math.radians(-90), math.radians(0)),  # 2
    Part.LineSegment(App.Vector(-33.4899, -86.233, 0), App.Vector(-33.4899, -88.773, 0)),  # 3
    Part.ArcOfCircle(Part.Circle(App.Vector(-33.4899, -86.233, 0), App.Vector(0, 0, 1), 2.54), math.radians(-180), math.radians(-90)),  # 4
    Part.LineSegment(App.Vector(-36.0299, -86.233, 0), App.Vector(-33.4899, -86.233, 0)),  # 5
], False)
sketch16.addGeometry(Part.LineSegment(App.Vector(-36.0299, -86.233, 0), App.Vector(36.0299, -86.233, 0)), True)  # axis
sketch16.addConstraint([
    Sketcher.Constraint("Coincident", 0, 2, 1, 1),
    Sketcher.Constraint("Coincident", 1, 2, 2, 2),
    Sketcher.Constraint("Coincident", 2, 1, 0, 1),
    Sketcher.Constraint("Coincident", 3, 2, 4, 2),
    Sketcher.Constraint("Coincident", 4, 1, 5, 1),
    Sketcher.Constraint("Coincident", 5, 2, 3, 1),
    Sketcher.Constraint("Vertical", 0),
    Sketcher.Constraint("Horizontal", 1),
    Sketcher.Constraint("Vertical", 3),
    Sketcher.Constraint("Horizontal", 5),
    Sketcher.Constraint("Horizontal", 6),
    Sketcher.Constraint("Coincident", 0, 2, 2, 3),
    Sketcher.Constraint("Coincident", 5, 2, 4, 3),
    Sketcher.Constraint("Coincident", 6, 1, 4, 1),
    Sketcher.Constraint("Coincident", 6, 2, 1, 2),
    Sketcher.Constraint("Equal", 2, 4),
    Sketcher.Constraint("Radius", 2, Q("0.1 in")),
    Sketcher.Constraint("DistanceX", 6, 1, 6, 2, Q("2.837 in")),
    Sketcher.Constraint("DistanceY", 2, 3, -1, 1, Q("3.395 in")),
    Sketcher.Constraint("DistanceX", -1, 1, 2, 3, Q("1.3185 in")),
])
revolution2 = body5.newObject("PartDesign::Revolution", "Revolution001")
revolution2.Profile = sketch16
revolution2.ReferenceAxis = (sketch16, ["Axis0"])
revolution2.Angle = 360

# Sketch on XZ plane
sketch17 = body5.newObject("Sketcher::SketchObject", "Sketch016")
sketch17.AttachmentSupport = (doc.getObject("XZ_Plane004"), [""])
sketch17.MapMode = "FlatFace"
sketch17.AttachmentOffset = App.Placement(App.Vector(0, 0, -2.598 * 25.4), App.Rotation())
sketch17.addGeometry(Part.Circle(App.Vector(0, -86.233, 0), App.Vector(0, 0, 1), 14.9987), False)
sketch17.addConstraint([
    Sketcher.Constraint("PointOnObject", 0, 3, -2),
    Sketcher.Constraint("Diameter", 0, Q("1.181 in")),
    Sketcher.Constraint("DistanceY", 0, 3, -1, 1, Q("3.395 in")),
])
pocket5 = body5.newObject("PartDesign::Pocket", "Pocket004")
pocket5.Profile = sketch17
pocket5.Length = Q("0.039 in")
pocket5.Reversed = True

doc.recompute()
